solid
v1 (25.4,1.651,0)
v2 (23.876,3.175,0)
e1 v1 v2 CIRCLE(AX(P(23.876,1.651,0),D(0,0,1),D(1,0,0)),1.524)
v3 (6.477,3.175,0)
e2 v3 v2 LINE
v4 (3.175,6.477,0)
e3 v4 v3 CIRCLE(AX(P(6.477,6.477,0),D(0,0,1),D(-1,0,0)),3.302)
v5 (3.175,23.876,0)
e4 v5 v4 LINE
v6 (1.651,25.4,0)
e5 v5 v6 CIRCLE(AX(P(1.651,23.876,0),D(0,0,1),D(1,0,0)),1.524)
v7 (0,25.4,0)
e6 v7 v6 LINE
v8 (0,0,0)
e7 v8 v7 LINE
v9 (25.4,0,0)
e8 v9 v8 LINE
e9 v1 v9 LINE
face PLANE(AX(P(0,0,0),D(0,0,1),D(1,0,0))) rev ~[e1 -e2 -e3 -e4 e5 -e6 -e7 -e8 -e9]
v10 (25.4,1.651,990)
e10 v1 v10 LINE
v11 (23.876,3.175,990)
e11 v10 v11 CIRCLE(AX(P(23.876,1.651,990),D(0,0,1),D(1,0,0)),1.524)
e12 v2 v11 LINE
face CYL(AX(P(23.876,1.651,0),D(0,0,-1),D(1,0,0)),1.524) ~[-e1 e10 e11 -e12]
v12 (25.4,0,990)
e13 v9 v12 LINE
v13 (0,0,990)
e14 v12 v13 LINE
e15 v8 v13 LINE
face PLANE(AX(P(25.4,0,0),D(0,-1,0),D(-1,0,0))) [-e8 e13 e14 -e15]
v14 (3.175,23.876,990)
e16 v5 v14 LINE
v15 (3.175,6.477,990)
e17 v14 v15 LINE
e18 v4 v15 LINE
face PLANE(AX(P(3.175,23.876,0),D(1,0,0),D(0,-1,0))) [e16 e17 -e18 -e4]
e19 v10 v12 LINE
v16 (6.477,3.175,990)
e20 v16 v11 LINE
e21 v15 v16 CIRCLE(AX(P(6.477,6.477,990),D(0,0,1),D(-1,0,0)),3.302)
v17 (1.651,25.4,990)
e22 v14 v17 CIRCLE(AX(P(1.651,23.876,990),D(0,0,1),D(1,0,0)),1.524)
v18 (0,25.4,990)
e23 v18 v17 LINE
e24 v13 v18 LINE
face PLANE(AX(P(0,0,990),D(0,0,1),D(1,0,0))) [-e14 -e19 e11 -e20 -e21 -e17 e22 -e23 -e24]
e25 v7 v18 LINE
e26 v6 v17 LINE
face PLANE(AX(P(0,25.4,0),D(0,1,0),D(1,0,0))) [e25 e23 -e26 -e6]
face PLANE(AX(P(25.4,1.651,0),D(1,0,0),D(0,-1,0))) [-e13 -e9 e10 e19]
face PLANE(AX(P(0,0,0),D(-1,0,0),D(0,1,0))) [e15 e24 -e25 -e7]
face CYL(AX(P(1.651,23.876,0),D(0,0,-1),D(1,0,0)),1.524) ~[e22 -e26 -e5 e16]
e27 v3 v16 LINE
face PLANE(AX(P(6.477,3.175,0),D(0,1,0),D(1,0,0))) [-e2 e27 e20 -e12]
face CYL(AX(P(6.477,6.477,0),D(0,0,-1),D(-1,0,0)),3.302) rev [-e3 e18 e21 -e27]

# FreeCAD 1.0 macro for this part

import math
import FreeCAD as App
import Part
import Sketcher

V = App.Vector
Q = App.Units.Quantity

doc = App.newDocument("Part")
body = doc.addObject("PartDesign::Body", "Body")

sketch1 = body.newObject("Sketcher::SketchObject", "Sketch")
sketch1.AttachmentSupport = (doc.getObject("XY_Plane"), [""])
sketch1.MapMode = "FlatFace"
sketch1.addGeometry(Part.LineSegment(V(0, 0, 0), V(25.4, 0, 0)), False)
sketch1.addGeometry(Part.LineSegment(V(25.4, 0, 0), V(25.4, 1.7, 0)), False)
sketch1.addGeometry(Part.ArcOfCircle(Part.Circle(V(23.9, 1.7, 0), V(0, 0, 1), 1.5), math.radians(0), math.radians(90)), False)
sketch1.addGeometry(Part.LineSegment(V(23.9, 3.2, 0), V(6.5, 3.2, 0)), False)
sketch1.addGeometry(Part.ArcOfCircle(Part.Circle(V(6.5, 6.5, 0), V(0, 0, 1), 3.3), math.radians(180), math.radians(270)), False)
sketch1.addGeometry(Part.LineSegment(V(3.2, 6.5, 0), V(3.2, 23.9, 0)), False)
sketch1.addGeometry(Part.ArcOfCircle(Part.Circle(V(1.7, 23.9, 0), V(0, 0, 1), 1.5), math.radians(0), math.radians(90)), False)
sketch1.addGeometry(Part.LineSegment(V(1.7, 25.4, 0), V(0, 25.4, 0)), False)
sketch1.addGeometry(Part.LineSegment(V(0, 25.4, 0), V(0, 0, 0)), False)
sketch1.addConstraint(Sketcher.Constraint("Coincident", 0, 2, 1, 1))
sketch1.addConstraint(Sketcher.Constraint("Tangent", 1, 2, 2, 1))
sketch1.addConstraint(Sketcher.Constraint("Tangent", 2, 2, 3, 1))
sketch1.addConstraint(Sketcher.Constraint("Tangent", 3, 2, 4, 2))
sketch1.addConstraint(Sketcher.Constraint("Tangent", 4, 1, 5, 1))
sketch1.addConstraint(Sketcher.Constraint("Tangent", 5, 2, 6, 1))
sketch1.addConstraint(Sketcher.Constraint("Tangent", 6, 2, 7, 1))
sketch1.addConstraint(Sketcher.Constraint("Coincident", 7, 2, 8, 1))
sketch1.addConstraint(Sketcher.Constraint("Coincident", 8, 2, 0, 1))
sketch1.addConstraint(Sketcher.Constraint("Horizontal", 0))
sketch1.addConstraint(Sketcher.Constraint("Vertical", 1))
sketch1.addConstraint(Sketcher.Constraint("Horizontal", 3))
sketch1.addConstraint(Sketcher.Constraint("Vertical", 5))
sketch1.addConstraint(Sketcher.Constraint("Horizontal", 7))
sketch1.addConstraint(Sketcher.Constraint("Vertical", 8))
sketch1.addConstraint(Sketcher.Constraint("Coincident", 8, 2, -1, 1))
sketch1.addConstraint(Sketcher.Constraint("Equal", 2, 6))
sketch1.addConstraint(Sketcher.Constraint("Equal", 7, 1))
sketch1.addConstraint(Sketcher.Constraint("Equal", 3, 5))
sketch1.addConstraint(Sketcher.Constraint("DistanceX", 0, 1, 0, 2, Q("1 in")))
sketch1.addConstraint(Sketcher.Constraint("Radius", 2, Q("0.06 in")))
sketch1.addConstraint(Sketcher.Constraint("Radius", 4, Q("0.13 in")))
sketch1.addConstraint(Sketcher.Constraint("DistanceY", -1, 1, 2, 2, Q("0.125 in")))
pad1 = body.newObject("PartDesign::Pad", "Pad")
pad1.Profile = sketch1
pad1.Length = 990

doc.recompute()
